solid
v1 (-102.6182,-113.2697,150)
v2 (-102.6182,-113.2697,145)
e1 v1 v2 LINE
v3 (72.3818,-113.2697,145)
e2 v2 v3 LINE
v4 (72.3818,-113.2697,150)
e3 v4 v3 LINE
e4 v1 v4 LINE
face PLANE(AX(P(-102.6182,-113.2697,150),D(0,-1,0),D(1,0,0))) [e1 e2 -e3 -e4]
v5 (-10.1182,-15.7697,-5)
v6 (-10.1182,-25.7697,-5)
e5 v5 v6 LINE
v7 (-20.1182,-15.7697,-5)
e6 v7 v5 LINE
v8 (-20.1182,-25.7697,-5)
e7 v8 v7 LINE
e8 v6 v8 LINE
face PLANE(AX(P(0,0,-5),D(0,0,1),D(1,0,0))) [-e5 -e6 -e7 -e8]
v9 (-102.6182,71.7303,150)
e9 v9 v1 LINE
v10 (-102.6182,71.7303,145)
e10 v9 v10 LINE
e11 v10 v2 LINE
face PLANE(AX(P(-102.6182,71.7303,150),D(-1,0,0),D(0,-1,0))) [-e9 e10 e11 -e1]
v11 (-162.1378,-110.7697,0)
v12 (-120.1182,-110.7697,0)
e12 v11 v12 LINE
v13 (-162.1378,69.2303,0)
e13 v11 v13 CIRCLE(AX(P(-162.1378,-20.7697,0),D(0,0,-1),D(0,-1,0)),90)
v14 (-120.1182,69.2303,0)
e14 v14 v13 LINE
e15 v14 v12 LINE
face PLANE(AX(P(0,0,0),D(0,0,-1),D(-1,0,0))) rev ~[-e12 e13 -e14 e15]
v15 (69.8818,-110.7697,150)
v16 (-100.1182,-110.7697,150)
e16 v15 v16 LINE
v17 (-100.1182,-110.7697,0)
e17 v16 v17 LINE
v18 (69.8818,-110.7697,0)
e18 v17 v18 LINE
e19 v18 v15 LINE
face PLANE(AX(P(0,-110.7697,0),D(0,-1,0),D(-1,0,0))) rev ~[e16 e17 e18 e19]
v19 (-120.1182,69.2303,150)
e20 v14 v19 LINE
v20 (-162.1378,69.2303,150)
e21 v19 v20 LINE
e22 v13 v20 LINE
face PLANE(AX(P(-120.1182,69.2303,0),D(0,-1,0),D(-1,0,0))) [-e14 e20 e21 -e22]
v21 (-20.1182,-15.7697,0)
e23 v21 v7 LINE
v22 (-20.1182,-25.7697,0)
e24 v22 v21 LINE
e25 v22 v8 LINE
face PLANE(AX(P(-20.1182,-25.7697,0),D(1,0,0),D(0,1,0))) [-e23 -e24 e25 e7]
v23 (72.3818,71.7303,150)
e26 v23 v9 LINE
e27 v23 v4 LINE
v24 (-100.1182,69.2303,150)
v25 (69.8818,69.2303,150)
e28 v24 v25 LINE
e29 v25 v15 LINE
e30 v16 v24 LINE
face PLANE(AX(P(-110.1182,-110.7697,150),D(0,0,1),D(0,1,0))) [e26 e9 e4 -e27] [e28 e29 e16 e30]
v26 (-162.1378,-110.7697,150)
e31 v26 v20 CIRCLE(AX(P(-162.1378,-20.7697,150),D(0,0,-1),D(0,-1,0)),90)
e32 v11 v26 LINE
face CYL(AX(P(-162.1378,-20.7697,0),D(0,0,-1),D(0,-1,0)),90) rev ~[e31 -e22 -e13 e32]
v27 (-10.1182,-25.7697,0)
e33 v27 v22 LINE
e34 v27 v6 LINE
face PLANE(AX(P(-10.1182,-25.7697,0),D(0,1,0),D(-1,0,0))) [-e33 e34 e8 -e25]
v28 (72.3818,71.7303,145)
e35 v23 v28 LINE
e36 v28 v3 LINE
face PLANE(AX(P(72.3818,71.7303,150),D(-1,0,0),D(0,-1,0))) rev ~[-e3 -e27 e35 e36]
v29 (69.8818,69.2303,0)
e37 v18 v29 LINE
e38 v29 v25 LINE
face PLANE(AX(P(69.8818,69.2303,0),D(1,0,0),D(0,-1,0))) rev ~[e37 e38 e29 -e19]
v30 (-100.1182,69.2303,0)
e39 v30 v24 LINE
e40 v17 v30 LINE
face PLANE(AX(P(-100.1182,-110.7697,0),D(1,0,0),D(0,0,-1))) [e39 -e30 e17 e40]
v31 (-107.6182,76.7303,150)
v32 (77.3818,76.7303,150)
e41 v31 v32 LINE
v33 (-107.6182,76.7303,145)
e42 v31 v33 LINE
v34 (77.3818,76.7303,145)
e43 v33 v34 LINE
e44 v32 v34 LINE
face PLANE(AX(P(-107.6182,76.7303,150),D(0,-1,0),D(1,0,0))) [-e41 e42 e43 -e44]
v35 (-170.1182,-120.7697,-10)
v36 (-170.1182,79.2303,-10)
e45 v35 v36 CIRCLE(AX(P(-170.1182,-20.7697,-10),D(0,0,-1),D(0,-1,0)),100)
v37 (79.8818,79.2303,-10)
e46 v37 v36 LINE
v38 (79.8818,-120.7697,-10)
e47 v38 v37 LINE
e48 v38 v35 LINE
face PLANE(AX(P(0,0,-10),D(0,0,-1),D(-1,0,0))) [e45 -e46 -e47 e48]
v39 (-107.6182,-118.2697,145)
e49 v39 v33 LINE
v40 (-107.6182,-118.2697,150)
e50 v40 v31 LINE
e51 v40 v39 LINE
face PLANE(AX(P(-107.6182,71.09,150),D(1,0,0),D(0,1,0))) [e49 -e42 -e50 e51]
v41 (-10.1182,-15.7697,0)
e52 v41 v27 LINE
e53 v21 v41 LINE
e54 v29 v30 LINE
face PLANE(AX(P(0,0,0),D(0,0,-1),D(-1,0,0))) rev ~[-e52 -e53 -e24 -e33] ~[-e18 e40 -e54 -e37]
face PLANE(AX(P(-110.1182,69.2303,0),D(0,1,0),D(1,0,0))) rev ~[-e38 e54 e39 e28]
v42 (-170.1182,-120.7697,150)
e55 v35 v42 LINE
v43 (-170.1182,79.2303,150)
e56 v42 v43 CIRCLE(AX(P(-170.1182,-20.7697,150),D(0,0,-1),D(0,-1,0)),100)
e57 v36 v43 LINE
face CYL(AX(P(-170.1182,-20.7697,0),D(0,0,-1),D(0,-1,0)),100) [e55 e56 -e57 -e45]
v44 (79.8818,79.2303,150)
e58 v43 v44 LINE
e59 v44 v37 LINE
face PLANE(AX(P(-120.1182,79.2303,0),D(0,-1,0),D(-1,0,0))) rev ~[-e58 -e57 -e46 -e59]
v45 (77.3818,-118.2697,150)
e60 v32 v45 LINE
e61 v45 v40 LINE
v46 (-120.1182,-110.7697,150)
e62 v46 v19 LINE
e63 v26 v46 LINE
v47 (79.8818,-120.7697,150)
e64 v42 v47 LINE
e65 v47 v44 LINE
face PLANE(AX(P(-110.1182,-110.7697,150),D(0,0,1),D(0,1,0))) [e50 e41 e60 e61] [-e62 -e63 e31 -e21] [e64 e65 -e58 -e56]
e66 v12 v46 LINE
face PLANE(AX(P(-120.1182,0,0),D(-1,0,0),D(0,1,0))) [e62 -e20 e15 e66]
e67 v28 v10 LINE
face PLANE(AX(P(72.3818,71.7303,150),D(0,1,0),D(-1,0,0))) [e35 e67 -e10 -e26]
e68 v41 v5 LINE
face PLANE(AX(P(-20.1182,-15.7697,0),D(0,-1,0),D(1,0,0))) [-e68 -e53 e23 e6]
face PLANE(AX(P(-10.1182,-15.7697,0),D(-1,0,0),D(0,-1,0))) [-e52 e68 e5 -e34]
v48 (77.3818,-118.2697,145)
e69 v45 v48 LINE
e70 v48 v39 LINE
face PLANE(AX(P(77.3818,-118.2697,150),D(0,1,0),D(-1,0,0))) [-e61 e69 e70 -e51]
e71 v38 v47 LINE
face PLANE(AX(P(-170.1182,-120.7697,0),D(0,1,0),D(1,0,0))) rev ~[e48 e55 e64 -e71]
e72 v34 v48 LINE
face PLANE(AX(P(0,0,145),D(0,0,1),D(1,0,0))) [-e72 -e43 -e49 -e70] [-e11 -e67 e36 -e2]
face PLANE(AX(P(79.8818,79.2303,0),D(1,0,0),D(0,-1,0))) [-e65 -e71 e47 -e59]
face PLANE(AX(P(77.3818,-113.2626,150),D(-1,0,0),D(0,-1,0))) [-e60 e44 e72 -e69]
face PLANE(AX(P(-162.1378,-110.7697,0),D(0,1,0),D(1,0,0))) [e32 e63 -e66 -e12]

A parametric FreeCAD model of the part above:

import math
import FreeCAD as App
import Part
import Sketcher

V = App.Vector
Q = App.Units.Quantity


def add_polygon(sketch, points):
    """Adds a closed chain of lines whose ends are joined by coincident constraints."""
    first, n = sketch.GeometryCount, len(points)
    for a, b in zip(points, points[1:] + points[:1]):
        sketch.addGeometry(Part.LineSegment(App.Vector(*a, 0), App.Vector(*b, 0)), False)
    for i in range(n):
        sketch.addConstraint(Sketcher.Constraint("Coincident", first + i, 2, first + (i + 1) % n, 1))

doc = App.newDocument("Part")
body = doc.addObject("PartDesign::Body", "Body")

# Sketch on XY plane
sketch1 = body.newObject("Sketcher::SketchObject", "Sketch")
sketch1.AttachmentSupport = (doc.getObject("XY_Plane"), [""])
sketch1.MapMode = "FlatFace"
add_polygon(sketch1, [(-120, 79), (-120, -121), (80, -121), (80, 79)])  # lines 0-3
add_polygon(sketch1, [(-110, 69), (70, 69), (70, -111), (-110, -111)])  # lines 4-7
sketch1.addConstraint([
    Sketcher.Constraint("Vertical", 0),
    Sketcher.Constraint("Horizontal", 1),
    Sketcher.Constraint("Vertical", 2),
    Sketcher.Constraint("Horizontal", 3),
    Sketcher.Constraint("Horizontal", 4),
    Sketcher.Constraint("Vertical", 5),
    Sketcher.Constraint("Horizontal", 6),
    Sketcher.Constraint("Vertical", 7),
    Sketcher.Constraint("Equal", 3, 0),
    Sketcher.Constraint("Equal", 6, 5),
    Sketcher.Constraint("DistanceX", 1, 1, 1, 2, Q("200 mm")),
    Sketcher.Constraint("DistanceX", 4, 2, 2, 2, Q("10 mm")),
    Sketcher.Constraint("DistanceY", 4, 2, 2, 2, Q("10 mm")),
    Sketcher.Constraint("DistanceY", 1, 2, 5, 2, Q("10 mm")),
    Sketcher.Constraint("DistanceX", 0, 2, -1, 1, Q("120.1182 mm")),
    Sketcher.Constraint("DistanceY", 0, 2, -1, 1, Q("120.7697 mm")),
])
pad1 = body.newObject("PartDesign::Pad", "Pad")
pad1.Profile = sketch1
pad1.Length = 150

# Sketch on XY plane
sketch2 = body.newObject("Sketcher::SketchObject", "Sketch001")
sketch2.AttachmentSupport = (doc.getObject("XY_Plane"), [""])
sketch2.MapMode = "FlatFace"
sketch2.addGeometry([
    Part.LineSegment(V(-170, 79, 0), V(-120, 79, 0)),  # 0
    Part.LineSegment(V(-120, 79, 0), V(-120, 69, 0)),  # 1
    Part.LineSegment(V(-120, 69, 0), V(-162, 69, 0)),  # 2
    Part.ArcOfCircle(Part.Circle(V(-162, -21, 0), V(0, 0, 1), 90), math.radians(90), math.radians(270)),  # 3
    Part.LineSegment(V(-162, -111, 0), V(-120, -111, 0)),  # 4
    Part.LineSegment(V(-120, -111, 0), V(-120, -121, 0)),  # 5
    Part.LineSegment(V(-120, -121, 0), V(-170, -121, 0)),  # 6
    Part.ArcOfCircle(Part.Circle(V(-170, -21, 0), V(0, 0, 1), 100), math.radians(90), math.radians(270)),  # 7
], False)
sketch2.addConstraint([
    Sketcher.Constraint("Coincident", 0, 2, 1, 1),
    Sketcher.Constraint("Coincident", 1, 2, 2, 1),
    Sketcher.Constraint("Tangent", 2, 2, 3, 1),
    Sketcher.Constraint("Tangent", 3, 2, 4, 1),
    Sketcher.Constraint("Coincident", 4, 2, 5, 1),
    Sketcher.Constraint("Coincident", 5, 2, 6, 1),
    Sketcher.Constraint("Tangent", 6, 2, 7, 2),
    Sketcher.Constraint("Tangent", 7, 1, 0, 1),
    Sketcher.Constraint("Horizontal", 0),
    Sketcher.Constraint("Vertical", 1),
    Sketcher.Constraint("Horizontal", 2),
    Sketcher.Constraint("Horizontal", 4),
    Sketcher.Constraint("Vertical", 5),
    Sketcher.Constraint("Horizontal", 6),
    Sketcher.Constraint("Horizontal", 3, 3, 7, 3),
    Sketcher.Constraint("Vertical", 1, 2, 4, 2),
    Sketcher.Constraint("DistanceY", 1, 2, 1, 1, Q("10 mm")),
    Sketcher.Constraint("Radius", 3, Q("90 mm")),
    Sketcher.Constraint("DistanceX", 0, 1, 0, 2, Q("50 mm")),
    Sketcher.Constraint("DistanceX", 2, 2, 2, 1, Q("42.0196 mm")),
    Sketcher.Constraint("DistanceX", 3, 3, -1, 1, Q("162.1378 mm")),
    Sketcher.Constraint("DistanceY", 3, 3, -1, 1, Q("20.7697 mm")),
])
pad2 = body.newObject("PartDesign::Pad", "Pad001")
pad2.Profile = sketch2
pad2.Length = 150

# Sketch on YZ plane
sketch3 = body.newObject("Sketcher::SketchObject", "Sketch002")
sketch3.AttachmentSupport = (doc.getObject("YZ_Plane"), [""])
sketch3.MapMode = "FlatFace"
sketch3.AttachmentOffset = App.Placement(V(0, 0, -110.1182), App.Rotation())
add_polygon(sketch3, [(69, 150), (-111, 150), (-111, 0), (69, 0)])  # lines 0-3
sketch3.addConstraint([
    Sketcher.Constraint("Horizontal", 0),
    Sketcher.Constraint("Vertical", 1),
    Sketcher.Constraint("Horizontal", 2),
    Sketcher.Constraint("Vertical", 3),
    Sketcher.Constraint("PointOnObject", 1, 2, -1),
    Sketcher.Constraint("DistanceX", 0, 2, 0, 1, Q("180 mm")),
    Sketcher.Constraint("DistanceY", 1, 2, 1, 1, Q("150 mm")),
    Sketcher.Constraint("DistanceX", 0, 2, -1, 1, Q("110.7697 mm")),
])
pad3 = body.newObject("PartDesign::Pad", "Pad002")
pad3.Profile = sketch3
pad3.Length = 10

# Sketch on XY plane
sketch4 = body.newObject("Sketcher::SketchObject", "Sketch003")
sketch4.AttachmentSupport = (doc.getObject("XY_Plane"), [""])
sketch4.MapMode = "FlatFace"
sketch4.addGeometry([
    Part.LineSegment(V(80, 79, 0), V(80, -121, 0)),
    Part.LineSegment(V(80, -121, 0), V(-170, -121, 0)),
    Part.ArcOfCircle(Part.Circle(V(-170, -21, 0), V(0, 0, 1), 100), math.radians(90), math.radians(270)),
    Part.LineSegment(V(-170, 79, 0), V(80, 79, 0)),
], False)
sketch4.addConstraint([
    Sketcher.Constraint("Coincident", 0, 2, 1, 1),
    Sketcher.Constraint("Tangent", 1, 2, 2, 2),
    Sketcher.Constraint("Tangent", 2, 1, 3, 1),
    Sketcher.Constraint("Coincident", 3, 2, 0, 1),
    Sketcher.Constraint("Vertical", 0),
    Sketcher.Constraint("Horizontal", 1),
    Sketcher.Constraint("Horizontal", 3),
    Sketcher.Constraint("Radius", 2, Q("100 mm")),
    Sketcher.Constraint("DistanceX", 1, 2, 1, 1, Q("250 mm")),
    Sketcher.Constraint("DistanceX", 2, 3, -1, 1, Q("170.1182 mm")),
    Sketcher.Constraint("DistanceY", 2, 3, -1, 1, Q("20.7697 mm")),
])
pad4 = body.newObject("PartDesign::Pad", "Pad003")
pad4.Profile = sketch4
pad4.Length = 10
pad4.Reversed = True

# Sketch on XY plane
sketch5 = body.newObject("Sketcher::SketchObject", "Sketch004")
sketch5.AttachmentSupport = (doc.getObject("XY_Plane"), [""])
sketch5.MapMode = "FlatFace"
sketch5.AttachmentOffset = App.Placement(V(0, 0, 150), App.Rotation())
add_polygon(sketch5, [(77, 77), (-108, 77), (-108, -118), (77, -118)])  # lines 0-3
add_polygon(sketch5, [(-103, 72), (72, 72), (72, -113), (-103, -113)])  # lines 4-7
sketch5.addConstraint([
    Sketcher.Constraint("Horizontal", 0),
    Sketcher.Constraint("Vertical", 1),
    Sketcher.Constraint("Horizontal", 2),
    Sketcher.Constraint("Vertical", 3),
    Sketcher.Constraint("Horizontal", 4),
    Sketcher.Constraint("Vertical", 5),
    Sketcher.Constraint("Horizontal", 6),
    Sketcher.Constraint("Vertical", 7),
    Sketcher.Constraint("Equal", 2, 5),
    Sketcher.Constraint("DistanceX", 4, 2, 3, 2, Q("5 mm")),
    Sketcher.Constraint("DistanceY", 4, 2, 3, 2, Q("5 mm")),
    Sketcher.Constraint("DistanceY", 2, 2, 5, 2, Q("5 mm")),
    Sketcher.Constraint("DistanceX", 1, 2, 6, 2, Q("5 mm")),
    Sketcher.Constraint("DistanceX", 0, 2, 0, 1, Q("185 mm")),
    Sketcher.Constraint("DistanceX", 0, 2, -1, 1, Q("107.6182 mm")),
    Sketcher.Constraint("DistanceY", -1, 1, 0, 2, Q("76.7303 mm")),
])
pocket1 = body.newObject("PartDesign::Pocket", "Pocket")
pocket1.Profile = sketch5
pocket1.Length = 5

# Sketch on XY plane
sketch6 = body.newObject("Sketcher::SketchObject", "Sketch005")
sketch6.AttachmentSupport = (doc.getObject("XY_Plane"), [""])
sketch6.MapMode = "FlatFace"
add_polygon(sketch6, [(-10, -16), (-20, -16), (-20, -26), (-10, -26)])  # lines 0-3
sketch6.addConstraint([
    Sketcher.Constraint("Horizontal", 0),
    Sketcher.Constraint("Vertical", 1),
    Sketcher.Constraint("Horizontal", 2),
    Sketcher.Constraint("Vertical", 3),
    Sketcher.Constraint("Equal", 2, 1),
    Sketcher.Constraint("DistanceX", 0, 2, 0, 1, Q("10 mm")),
    Sketcher.Constraint("DistanceX", 0, 2, -1, 1, Q("20.1182 mm")),
    Sketcher.Constraint("DistanceY", 0, 2, -1, 1, Q("15.7697 mm")),
])
pocket2 = body.newObject("PartDesign::Pocket", "Pocket001")
pocket2.Profile = sketch6
pocket2.Length = 5

doc.recompute()
